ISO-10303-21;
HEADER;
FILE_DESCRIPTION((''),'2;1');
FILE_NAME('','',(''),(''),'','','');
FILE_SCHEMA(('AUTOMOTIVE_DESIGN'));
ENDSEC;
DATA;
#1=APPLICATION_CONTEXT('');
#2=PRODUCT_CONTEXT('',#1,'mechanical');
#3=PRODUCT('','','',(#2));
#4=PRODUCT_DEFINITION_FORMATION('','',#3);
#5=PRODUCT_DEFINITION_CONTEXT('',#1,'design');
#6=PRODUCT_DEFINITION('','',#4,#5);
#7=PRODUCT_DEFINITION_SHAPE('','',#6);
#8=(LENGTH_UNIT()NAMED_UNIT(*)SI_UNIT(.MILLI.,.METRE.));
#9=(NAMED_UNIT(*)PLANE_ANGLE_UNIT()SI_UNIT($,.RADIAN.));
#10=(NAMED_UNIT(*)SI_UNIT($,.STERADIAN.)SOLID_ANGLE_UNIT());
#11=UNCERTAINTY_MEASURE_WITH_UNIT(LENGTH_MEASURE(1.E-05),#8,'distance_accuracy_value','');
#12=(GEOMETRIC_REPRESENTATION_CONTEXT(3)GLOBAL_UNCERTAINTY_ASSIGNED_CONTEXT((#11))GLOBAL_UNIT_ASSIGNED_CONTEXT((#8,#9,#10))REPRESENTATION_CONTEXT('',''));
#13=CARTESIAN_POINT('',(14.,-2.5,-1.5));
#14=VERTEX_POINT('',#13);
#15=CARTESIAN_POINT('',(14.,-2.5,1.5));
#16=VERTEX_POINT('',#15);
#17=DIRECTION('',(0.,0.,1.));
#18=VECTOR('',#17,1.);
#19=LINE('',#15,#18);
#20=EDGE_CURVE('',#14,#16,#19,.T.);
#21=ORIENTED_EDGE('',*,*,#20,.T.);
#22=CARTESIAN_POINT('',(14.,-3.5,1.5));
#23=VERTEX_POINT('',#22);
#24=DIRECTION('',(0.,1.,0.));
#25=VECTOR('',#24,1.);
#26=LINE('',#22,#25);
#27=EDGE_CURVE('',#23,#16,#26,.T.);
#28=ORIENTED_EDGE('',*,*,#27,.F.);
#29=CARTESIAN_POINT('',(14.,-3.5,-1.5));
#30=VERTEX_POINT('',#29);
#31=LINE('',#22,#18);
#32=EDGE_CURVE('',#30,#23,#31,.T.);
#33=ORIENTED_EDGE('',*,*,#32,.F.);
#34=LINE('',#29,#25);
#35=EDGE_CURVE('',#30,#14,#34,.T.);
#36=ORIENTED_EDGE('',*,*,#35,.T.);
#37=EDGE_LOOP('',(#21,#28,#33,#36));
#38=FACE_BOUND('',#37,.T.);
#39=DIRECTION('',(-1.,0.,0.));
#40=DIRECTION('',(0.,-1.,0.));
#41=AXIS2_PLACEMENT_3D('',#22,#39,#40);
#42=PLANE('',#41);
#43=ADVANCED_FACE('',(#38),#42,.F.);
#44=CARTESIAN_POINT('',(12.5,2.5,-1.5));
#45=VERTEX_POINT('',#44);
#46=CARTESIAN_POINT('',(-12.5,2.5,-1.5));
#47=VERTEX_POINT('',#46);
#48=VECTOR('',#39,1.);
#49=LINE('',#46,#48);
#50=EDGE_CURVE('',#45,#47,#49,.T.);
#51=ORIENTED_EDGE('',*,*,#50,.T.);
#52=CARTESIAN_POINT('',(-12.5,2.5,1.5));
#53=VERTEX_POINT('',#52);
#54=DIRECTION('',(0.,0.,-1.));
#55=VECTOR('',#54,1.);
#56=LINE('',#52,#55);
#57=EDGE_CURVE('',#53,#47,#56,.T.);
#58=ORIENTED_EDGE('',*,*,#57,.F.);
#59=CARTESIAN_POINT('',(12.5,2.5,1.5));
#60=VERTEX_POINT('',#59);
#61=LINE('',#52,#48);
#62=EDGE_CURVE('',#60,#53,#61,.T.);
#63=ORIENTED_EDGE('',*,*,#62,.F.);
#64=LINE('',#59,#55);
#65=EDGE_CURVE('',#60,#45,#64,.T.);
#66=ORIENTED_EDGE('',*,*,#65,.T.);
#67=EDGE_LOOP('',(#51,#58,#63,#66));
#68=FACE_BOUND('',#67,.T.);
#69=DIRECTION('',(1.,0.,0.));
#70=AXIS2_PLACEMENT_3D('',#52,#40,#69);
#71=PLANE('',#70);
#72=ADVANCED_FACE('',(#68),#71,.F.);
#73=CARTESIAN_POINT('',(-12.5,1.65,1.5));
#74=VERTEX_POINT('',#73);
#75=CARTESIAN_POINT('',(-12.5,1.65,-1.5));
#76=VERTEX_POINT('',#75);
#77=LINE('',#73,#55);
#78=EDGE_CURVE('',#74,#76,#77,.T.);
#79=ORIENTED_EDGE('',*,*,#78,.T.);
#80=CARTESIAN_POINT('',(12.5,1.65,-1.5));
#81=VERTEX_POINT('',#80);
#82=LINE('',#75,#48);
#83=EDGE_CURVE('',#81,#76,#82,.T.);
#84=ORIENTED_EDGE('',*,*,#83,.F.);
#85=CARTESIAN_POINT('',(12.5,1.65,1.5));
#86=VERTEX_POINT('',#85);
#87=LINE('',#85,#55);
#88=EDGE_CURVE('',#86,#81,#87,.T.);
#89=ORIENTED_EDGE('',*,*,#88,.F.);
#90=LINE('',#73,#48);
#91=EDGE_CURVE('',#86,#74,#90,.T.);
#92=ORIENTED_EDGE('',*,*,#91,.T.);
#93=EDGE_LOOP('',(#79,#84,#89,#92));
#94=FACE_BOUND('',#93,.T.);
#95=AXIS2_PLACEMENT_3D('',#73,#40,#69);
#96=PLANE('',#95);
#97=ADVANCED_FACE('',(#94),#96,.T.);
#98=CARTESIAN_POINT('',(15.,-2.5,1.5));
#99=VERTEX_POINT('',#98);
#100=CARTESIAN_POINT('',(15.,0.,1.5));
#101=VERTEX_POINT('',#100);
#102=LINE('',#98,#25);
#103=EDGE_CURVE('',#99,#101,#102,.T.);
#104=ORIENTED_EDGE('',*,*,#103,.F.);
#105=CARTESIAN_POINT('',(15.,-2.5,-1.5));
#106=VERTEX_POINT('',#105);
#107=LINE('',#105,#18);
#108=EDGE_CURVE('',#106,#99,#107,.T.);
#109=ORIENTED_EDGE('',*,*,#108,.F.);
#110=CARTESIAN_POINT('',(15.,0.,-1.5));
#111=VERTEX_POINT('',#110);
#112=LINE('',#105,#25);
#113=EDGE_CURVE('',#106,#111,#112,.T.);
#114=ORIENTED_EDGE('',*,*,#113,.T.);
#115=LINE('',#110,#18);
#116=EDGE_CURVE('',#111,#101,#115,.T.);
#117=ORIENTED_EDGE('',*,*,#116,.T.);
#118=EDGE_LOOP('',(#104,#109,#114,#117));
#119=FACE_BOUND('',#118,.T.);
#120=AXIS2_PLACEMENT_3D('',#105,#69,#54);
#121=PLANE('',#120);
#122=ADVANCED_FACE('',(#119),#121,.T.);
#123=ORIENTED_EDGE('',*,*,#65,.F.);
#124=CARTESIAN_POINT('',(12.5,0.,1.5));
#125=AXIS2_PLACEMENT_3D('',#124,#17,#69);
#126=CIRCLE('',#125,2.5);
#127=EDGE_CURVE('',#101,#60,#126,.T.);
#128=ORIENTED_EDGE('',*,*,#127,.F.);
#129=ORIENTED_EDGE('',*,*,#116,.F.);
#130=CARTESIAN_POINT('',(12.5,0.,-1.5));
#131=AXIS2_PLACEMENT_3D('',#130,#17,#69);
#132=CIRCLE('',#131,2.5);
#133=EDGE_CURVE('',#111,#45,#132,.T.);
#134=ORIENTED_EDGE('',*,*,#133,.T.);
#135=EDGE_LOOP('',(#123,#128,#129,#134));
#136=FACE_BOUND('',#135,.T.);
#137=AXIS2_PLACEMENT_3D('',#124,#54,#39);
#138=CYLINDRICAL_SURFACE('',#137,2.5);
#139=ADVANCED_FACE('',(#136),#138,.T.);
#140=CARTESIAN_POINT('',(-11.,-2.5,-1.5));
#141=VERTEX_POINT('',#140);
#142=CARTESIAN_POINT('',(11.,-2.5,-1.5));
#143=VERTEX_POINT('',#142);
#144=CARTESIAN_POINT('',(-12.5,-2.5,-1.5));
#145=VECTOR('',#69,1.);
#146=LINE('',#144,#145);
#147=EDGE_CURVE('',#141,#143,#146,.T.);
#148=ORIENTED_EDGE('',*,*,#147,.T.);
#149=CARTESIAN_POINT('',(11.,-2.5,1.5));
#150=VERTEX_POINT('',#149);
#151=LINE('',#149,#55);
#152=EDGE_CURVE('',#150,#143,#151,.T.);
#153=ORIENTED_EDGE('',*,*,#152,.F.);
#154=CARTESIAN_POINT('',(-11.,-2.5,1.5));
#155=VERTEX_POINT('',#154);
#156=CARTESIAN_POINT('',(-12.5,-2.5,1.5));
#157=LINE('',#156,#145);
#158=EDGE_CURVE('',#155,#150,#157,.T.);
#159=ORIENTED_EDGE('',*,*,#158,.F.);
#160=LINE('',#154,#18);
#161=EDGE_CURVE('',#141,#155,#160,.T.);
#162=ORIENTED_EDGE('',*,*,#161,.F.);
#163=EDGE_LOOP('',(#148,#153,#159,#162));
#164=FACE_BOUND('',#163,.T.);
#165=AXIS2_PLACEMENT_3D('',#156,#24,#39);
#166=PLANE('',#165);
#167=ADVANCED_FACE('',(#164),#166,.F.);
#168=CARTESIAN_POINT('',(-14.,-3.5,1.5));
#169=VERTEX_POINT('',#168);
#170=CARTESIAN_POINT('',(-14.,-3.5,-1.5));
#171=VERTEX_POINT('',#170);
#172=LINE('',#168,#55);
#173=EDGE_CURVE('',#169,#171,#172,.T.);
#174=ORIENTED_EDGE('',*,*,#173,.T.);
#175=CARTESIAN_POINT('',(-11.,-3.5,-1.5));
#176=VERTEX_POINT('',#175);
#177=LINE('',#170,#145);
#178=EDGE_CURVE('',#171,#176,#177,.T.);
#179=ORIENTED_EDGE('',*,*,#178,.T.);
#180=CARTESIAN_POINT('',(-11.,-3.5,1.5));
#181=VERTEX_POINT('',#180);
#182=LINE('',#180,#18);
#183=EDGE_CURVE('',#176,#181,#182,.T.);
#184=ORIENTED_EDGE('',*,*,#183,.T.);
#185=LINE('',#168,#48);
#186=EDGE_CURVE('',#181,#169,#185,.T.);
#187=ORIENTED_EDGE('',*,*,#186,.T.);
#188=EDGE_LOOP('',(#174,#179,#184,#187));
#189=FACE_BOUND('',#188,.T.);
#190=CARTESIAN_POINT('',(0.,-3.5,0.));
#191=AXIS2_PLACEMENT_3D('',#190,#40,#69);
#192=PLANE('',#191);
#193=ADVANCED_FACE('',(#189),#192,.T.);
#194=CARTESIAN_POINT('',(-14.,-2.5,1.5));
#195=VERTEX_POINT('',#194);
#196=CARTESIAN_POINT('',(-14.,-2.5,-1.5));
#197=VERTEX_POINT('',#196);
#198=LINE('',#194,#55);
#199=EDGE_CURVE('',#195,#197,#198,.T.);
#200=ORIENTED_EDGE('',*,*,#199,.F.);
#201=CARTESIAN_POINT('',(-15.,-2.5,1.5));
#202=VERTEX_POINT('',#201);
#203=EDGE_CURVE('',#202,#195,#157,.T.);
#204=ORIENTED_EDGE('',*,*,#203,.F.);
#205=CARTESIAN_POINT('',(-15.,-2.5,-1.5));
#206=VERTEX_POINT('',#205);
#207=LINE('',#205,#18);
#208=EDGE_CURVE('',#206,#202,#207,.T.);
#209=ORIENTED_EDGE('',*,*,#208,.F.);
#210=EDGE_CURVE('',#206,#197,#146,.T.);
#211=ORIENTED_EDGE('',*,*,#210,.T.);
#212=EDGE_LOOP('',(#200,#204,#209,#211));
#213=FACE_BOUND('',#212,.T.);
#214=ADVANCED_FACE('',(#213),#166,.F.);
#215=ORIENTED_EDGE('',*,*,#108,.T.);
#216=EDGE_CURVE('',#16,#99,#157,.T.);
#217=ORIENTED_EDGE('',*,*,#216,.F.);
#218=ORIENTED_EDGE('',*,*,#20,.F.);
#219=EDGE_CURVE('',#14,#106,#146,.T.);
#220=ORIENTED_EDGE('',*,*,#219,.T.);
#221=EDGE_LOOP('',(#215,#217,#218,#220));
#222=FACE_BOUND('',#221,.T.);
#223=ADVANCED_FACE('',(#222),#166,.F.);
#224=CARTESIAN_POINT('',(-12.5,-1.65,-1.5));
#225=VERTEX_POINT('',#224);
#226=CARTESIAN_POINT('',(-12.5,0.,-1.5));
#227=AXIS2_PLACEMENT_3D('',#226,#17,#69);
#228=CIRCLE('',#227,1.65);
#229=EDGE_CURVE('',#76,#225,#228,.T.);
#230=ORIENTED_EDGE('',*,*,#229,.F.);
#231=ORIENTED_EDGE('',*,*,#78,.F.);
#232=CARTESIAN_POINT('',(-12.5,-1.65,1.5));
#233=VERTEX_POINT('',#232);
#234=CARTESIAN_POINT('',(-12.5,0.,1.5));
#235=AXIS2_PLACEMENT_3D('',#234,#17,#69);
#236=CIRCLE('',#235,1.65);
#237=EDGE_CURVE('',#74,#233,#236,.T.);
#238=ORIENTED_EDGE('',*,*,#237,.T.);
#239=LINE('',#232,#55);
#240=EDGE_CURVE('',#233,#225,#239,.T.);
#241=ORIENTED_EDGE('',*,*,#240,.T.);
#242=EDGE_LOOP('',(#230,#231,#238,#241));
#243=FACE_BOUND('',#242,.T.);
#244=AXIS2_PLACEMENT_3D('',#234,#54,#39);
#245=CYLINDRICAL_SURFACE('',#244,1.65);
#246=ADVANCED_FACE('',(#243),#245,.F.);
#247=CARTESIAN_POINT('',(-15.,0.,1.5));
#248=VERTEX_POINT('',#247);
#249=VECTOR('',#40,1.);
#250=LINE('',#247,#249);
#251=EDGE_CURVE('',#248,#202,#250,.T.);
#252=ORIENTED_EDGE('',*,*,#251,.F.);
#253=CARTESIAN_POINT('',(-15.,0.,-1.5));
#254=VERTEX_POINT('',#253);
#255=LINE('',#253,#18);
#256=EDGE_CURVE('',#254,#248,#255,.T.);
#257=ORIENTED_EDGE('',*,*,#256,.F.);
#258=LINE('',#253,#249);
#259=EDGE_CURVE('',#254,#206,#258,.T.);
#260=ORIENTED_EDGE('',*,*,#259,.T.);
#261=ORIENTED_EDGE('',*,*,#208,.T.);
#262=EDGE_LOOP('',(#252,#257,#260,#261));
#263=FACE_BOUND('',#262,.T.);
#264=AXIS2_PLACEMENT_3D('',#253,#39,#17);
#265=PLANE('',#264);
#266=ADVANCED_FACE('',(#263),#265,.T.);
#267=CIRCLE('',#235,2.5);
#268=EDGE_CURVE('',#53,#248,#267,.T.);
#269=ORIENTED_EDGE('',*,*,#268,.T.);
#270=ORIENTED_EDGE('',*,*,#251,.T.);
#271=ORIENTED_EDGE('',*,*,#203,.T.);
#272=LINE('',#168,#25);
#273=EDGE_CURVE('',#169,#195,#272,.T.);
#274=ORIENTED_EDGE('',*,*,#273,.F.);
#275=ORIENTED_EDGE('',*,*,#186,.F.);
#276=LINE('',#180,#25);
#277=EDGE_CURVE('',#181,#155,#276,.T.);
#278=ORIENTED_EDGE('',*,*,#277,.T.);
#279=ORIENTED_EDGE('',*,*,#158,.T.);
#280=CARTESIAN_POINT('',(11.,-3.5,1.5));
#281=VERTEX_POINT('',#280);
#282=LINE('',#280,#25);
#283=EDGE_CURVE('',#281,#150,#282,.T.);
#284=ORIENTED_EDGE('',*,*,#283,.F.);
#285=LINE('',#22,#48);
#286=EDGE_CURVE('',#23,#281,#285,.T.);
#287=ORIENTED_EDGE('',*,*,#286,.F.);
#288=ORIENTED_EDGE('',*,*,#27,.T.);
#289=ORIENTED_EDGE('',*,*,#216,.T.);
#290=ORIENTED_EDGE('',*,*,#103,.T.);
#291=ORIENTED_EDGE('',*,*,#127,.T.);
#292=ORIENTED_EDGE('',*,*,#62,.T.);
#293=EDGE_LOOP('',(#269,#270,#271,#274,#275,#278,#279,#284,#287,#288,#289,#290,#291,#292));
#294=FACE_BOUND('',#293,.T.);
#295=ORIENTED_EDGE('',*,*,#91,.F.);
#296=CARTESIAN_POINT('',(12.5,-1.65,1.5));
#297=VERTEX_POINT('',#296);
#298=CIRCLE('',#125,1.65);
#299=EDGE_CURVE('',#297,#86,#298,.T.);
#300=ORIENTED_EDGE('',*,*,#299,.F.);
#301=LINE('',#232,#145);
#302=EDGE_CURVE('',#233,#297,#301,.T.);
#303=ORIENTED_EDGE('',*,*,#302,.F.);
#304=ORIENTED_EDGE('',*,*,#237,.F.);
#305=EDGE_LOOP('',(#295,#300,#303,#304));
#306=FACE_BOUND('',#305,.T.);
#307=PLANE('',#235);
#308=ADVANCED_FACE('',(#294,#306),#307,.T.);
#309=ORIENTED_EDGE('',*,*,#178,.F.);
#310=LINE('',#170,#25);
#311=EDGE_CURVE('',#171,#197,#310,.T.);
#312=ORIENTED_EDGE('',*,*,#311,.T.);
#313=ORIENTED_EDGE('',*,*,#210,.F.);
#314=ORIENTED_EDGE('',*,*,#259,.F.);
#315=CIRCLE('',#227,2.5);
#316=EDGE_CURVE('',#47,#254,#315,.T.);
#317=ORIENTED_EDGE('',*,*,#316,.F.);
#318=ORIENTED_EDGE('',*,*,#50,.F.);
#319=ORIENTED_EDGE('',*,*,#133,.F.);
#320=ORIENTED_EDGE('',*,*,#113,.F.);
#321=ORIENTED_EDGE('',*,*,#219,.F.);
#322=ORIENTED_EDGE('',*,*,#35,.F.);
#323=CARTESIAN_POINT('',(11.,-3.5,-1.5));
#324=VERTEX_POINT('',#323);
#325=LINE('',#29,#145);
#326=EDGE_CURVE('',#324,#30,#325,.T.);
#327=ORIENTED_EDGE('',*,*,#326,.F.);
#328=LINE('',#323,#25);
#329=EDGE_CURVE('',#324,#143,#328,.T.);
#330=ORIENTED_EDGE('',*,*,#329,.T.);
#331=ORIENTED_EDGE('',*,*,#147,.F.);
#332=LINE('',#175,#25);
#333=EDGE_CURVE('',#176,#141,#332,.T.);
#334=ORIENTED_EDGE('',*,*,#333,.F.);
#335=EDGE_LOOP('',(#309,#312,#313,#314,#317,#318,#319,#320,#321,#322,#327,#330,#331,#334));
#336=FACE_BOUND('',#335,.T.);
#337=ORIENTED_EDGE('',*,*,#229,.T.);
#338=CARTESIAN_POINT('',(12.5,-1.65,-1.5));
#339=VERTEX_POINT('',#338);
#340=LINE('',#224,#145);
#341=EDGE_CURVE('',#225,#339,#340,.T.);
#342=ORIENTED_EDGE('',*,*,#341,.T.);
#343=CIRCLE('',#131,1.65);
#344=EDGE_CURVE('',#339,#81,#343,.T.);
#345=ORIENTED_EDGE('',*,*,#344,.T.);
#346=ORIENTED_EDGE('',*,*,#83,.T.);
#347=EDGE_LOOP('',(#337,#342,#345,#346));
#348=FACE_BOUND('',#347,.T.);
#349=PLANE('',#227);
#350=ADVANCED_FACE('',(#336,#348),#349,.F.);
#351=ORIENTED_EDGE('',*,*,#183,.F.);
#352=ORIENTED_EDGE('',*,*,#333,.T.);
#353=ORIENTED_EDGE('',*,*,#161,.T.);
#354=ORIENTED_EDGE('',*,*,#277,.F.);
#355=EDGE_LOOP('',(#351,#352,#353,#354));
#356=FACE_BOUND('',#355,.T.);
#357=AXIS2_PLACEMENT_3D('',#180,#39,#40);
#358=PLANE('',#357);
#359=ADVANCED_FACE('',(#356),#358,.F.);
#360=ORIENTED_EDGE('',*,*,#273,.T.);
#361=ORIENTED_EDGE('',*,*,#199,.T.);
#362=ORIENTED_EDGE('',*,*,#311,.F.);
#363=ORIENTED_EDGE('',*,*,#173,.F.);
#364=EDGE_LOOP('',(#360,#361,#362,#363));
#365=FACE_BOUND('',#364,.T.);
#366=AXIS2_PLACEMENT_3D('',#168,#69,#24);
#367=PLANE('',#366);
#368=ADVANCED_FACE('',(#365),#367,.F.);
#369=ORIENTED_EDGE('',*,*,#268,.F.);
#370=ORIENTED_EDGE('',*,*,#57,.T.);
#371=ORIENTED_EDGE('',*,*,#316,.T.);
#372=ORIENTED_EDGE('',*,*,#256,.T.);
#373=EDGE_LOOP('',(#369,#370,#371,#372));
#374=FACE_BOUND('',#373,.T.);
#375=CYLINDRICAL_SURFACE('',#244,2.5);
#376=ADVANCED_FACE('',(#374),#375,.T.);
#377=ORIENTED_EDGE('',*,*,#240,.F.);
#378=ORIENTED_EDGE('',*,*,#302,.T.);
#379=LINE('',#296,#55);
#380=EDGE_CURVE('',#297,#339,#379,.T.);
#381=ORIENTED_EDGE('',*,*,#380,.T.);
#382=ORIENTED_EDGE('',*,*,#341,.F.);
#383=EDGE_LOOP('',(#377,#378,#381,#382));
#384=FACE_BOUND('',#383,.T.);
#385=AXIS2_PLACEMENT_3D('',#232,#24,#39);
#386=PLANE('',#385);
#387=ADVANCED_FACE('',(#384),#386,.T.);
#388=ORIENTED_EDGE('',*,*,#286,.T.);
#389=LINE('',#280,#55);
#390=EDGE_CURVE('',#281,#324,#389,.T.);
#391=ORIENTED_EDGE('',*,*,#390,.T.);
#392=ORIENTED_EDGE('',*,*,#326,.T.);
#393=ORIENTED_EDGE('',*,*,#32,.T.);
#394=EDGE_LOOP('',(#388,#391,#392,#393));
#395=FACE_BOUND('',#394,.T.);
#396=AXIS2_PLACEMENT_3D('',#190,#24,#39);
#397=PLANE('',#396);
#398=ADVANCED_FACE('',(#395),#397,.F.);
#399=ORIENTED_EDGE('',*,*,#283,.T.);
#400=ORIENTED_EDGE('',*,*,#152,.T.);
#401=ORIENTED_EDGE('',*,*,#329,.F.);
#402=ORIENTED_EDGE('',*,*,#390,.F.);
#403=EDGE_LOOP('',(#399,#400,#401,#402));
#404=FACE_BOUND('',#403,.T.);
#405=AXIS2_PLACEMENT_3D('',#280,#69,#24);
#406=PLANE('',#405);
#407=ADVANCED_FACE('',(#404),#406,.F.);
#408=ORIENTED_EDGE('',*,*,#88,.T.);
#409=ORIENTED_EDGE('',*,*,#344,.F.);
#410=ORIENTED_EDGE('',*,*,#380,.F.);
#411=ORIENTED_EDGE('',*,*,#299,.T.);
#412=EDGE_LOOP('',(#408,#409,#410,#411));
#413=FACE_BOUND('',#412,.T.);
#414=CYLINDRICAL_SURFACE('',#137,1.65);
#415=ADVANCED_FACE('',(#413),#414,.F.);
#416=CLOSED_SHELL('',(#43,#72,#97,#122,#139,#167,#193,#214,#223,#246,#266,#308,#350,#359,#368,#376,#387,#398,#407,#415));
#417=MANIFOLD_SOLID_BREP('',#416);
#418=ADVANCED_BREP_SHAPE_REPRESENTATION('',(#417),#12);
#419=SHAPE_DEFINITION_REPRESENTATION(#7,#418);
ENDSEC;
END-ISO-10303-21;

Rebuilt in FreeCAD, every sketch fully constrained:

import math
import FreeCAD as App
import Part
import Sketcher

V = App.Vector

doc = App.newDocument("Part")
params = doc.addObject("Spreadsheet::Sheet", "Params")
for row, (alias, value) in enumerate([
    ("sketch1_radius", "2.5 mm"),
    ("sketch1_width", "25 mm"),
    ("sketch1_radius2", "1.65 mm"),
    ("pad1_length", "3 mm"),
    ("sketch2_radius", "2.5 mm"),
    ("pad2_length", "3 mm"),
    ("sketch3_width", "3 mm"),
    ("pad3_length", "1 mm"),
], start=1):
    params.set(f"A{row}", alias)
    params.set(f"B{row}", "=" + value)
    params.setAlias(f"B{row}", alias)

body = doc.addObject("PartDesign::Body", "Body")

# Sketch on XY plane
sketch1 = body.newObject("Sketcher::SketchObject", "Sketch")
sketch1.AttachmentSupport = (doc.getObject("XY_Plane"), [""])
sketch1.MapMode = "FlatFace"
sketch1.addGeometry([
    Part.LineSegment(V(12.5, 2.5, 0), V(-12.5, 2.5, 0)),  # 0
    Part.ArcOfCircle(Part.Circle(V(-12.5, 0, 0), V(0, 0, 1), 2.5), math.radians(90), math.radians(270)),  # 1
    Part.LineSegment(V(-12.5, -2.5, 0), V(12.5, -2.5, 0)),  # 2
    Part.ArcOfCircle(Part.Circle(V(12.5, 0, 0), V(0, 0, 1), 2.5), math.radians(-90), math.radians(90)),  # 3
    Part.LineSegment(V(-12.5, 1.6, 0), V(12.5, 1.6, 0)),  # 4
    Part.ArcOfCircle(Part.Circle(V(12.5, 0, 0), V(0, 0, 1), 1.6), math.radians(-90), math.radians(90)),  # 5
    Part.LineSegment(V(12.5, -1.6, 0), V(-12.5, -1.6, 0)),  # 6
    Part.ArcOfCircle(Part.Circle(V(-12.5, 0, 0), V(0, 0, 1), 1.6), math.radians(90), math.radians(270)),  # 7
], False)
sketch1.addConstraint([
    Sketcher.Constraint("Tangent", 0, 2, 1, 1),
    Sketcher.Constraint("Tangent", 1, 2, 2, 1),
    Sketcher.Constraint("Tangent", 2, 2, 3, 1),
    Sketcher.Constraint("Tangent", 3, 2, 0, 1),
    Sketcher.Constraint("Tangent", 4, 2, 5, 2),
    Sketcher.Constraint("Tangent", 5, 1, 6, 1),
    Sketcher.Constraint("Tangent", 6, 2, 7, 2),
    Sketcher.Constraint("Tangent", 7, 1, 4, 1),
    Sketcher.Constraint("Horizontal", 0),
    Sketcher.Constraint("Horizontal", 2),
    Sketcher.Constraint("Horizontal", 4),
    Sketcher.Constraint("Horizontal", 6),
    Sketcher.Constraint("Coincident", 5, 3, 3, 3),
    Sketcher.Constraint("Symmetric", 1, 3, 3, 3, -1, 1),
    Sketcher.Constraint("Vertical", 7, 3, 0, 2),
    Sketcher.Constraint("Radius", 1, 2.5),
    Sketcher.Constraint("DistanceX", 0, 2, 0, 1, 25.0),
    Sketcher.Constraint("Radius", 5, 1.65),
])
sketch1.setExpression("Constraints[15]", "Params.sketch1_radius")
sketch1.setExpression("Constraints[16]", "Params.sketch1_width")
sketch1.setExpression("Constraints[17]", "Params.sketch1_radius2")
pad1 = body.newObject("PartDesign::Pad", "Pad")
pad1.Profile = sketch1
pad1.setExpression("Length", "Params.pad1_length")
pad1.Midplane = True

# Sketch on XY plane
sketch2 = body.newObject("Sketcher::SketchObject", "Sketch001")
sketch2.AttachmentSupport = (doc.getObject("XY_Plane"), [""])
sketch2.MapMode = "FlatFace"
sketch2.AttachmentOffset = App.Placement(V(0, 0, 1.5), App.Rotation())
sketch2.addGeometry([
    Part.LineSegment(V(-15, 0, 0), V(-15, -2.5, 0)),  # 0
    Part.LineSegment(V(-15, -2.5, 0), V(-12.5, -2.5, 0)),  # 1
    Part.ArcOfCircle(Part.Circle(V(-12.5, 0, 0), V(0, 0, 1), 2.5), math.radians(180), math.radians(270)),  # 2
    Part.LineSegment(V(12.5, -2.5, 0), V(15, -2.5, 0)),  # 3
    Part.LineSegment(V(15, -2.5, 0), V(15, 0, 0)),  # 4
    Part.ArcOfCircle(Part.Circle(V(12.5, 0, 0), V(0, 0, 1), 2.5), math.radians(-90), math.radians(0)),  # 5
], False)
sketch2.addConstraint([
    Sketcher.Constraint("Coincident", 0, 2, 1, 1),
    Sketcher.Constraint("Tangent", 1, 2, 2, 2),
    Sketcher.Constraint("Tangent", 2, 1, 0, 1),
    Sketcher.Constraint("Coincident", 3, 2, 4, 1),
    Sketcher.Constraint("Tangent", 4, 2, 5, 2),
    Sketcher.Constraint("Tangent", 5, 1, 3, 1),
    Sketcher.Constraint("Vertical", 0),
    Sketcher.Constraint("Horizontal", 1),
    Sketcher.Constraint("Horizontal", 3),
    Sketcher.Constraint("Vertical", 4),
    Sketcher.Constraint("Equal", 2, 5),
    Sketcher.Constraint("Symmetric", 2, 3, 5, 3, -1, 1),
    Sketcher.Constraint("PointOnObject", 2, 3, -1),
    Sketcher.Constraint("Radius", 2, 2.5),
    Sketcher.Constraint("DistanceX", 0, 2, -1, 1, 15.0),
])
sketch2.setExpression("Constraints[13]", "Params.sketch2_radius")
pad2 = body.newObject("PartDesign::Pad", "Pad001")
pad2.Profile = sketch2
pad2.setExpression("Length", "Params.pad2_length")
pad2.Reversed = True

# Sketch on XZ plane
sketch3 = body.newObject("Sketcher::SketchObject", "Sketch002")
sketch3.AttachmentSupport = (doc.getObject("XZ_Plane"), [""])
sketch3.MapMode = "FlatFace"
sketch3.AttachmentOffset = App.Placement(V(0, 0, 2.5), App.Rotation())
sketch3.addGeometry([
    Part.LineSegment(V(-14, 1.5, 0), V(-14, -1.5, 0)),  # 0
    Part.LineSegment(V(-14, -1.5, 0), V(-11, -1.5, 0)),  # 1
    Part.LineSegment(V(-11, -1.5, 0), V(-11, 1.5, 0)),  # 2
    Part.LineSegment(V(-11, 1.5, 0), V(-14, 1.5, 0)),  # 3
    Part.LineSegment(V(11, 1.5, 0), V(11, -1.5, 0)),  # 4
    Part.LineSegment(V(11, -1.5, 0), V(14, -1.5, 0)),  # 5
    Part.LineSegment(V(14, -1.5, 0), V(14, 1.5, 0)),  # 6
    Part.LineSegment(V(14, 1.5, 0), V(11, 1.5, 0)),  # 7
], False)
sketch3.addConstraint([
    Sketcher.Constraint("Coincident", 0, 2, 1, 1),
    Sketcher.Constraint("Coincident", 1, 2, 2, 1),
    Sketcher.Constraint("Coincident", 2, 2, 3, 1),
    Sketcher.Constraint("Coincident", 3, 2, 0, 1),
    Sketcher.Constraint("Coincident", 4, 2, 5, 1),
    Sketcher.Constraint("Coincident", 5, 2, 6, 1),
    Sketcher.Constraint("Coincident", 6, 2, 7, 1),
    Sketcher.Constraint("Coincident", 7, 2, 4, 1),
    Sketcher.Constraint("Vertical", 0),
    Sketcher.Constraint("Horizontal", 1),
    Sketcher.Constraint("Vertical", 2),
    Sketcher.Constraint("Horizontal", 3),
    Sketcher.Constraint("Vertical", 4),
    Sketcher.Constraint("Horizontal", 5),
    Sketcher.Constraint("Vertical", 6),
    Sketcher.Constraint("Horizontal", 7),
    Sketcher.Constraint("Symmetric", 2, 2, 4, 2, -1, 1),
    Sketcher.Constraint("Symmetric", 0, 2, 6, 2, -1, 1),
    Sketcher.Constraint("Horizontal", 1, 2, 4, 2),
    Sketcher.Constraint("Equal", 7, 0),
    Sketcher.Constraint("DistanceX", 1, 1, 1, 2, 3.0),
    Sketcher.Constraint("DistanceX", 0, 2, -1, 1, 14.0),
])
sketch3.setExpression("Constraints[20]", "Params.sketch3_width")
pad3 = body.newObject("PartDesign::Pad", "Pad002")
pad3.Profile = sketch3
pad3.setExpression("Length", "Params.pad3_length")

doc.recompute()
